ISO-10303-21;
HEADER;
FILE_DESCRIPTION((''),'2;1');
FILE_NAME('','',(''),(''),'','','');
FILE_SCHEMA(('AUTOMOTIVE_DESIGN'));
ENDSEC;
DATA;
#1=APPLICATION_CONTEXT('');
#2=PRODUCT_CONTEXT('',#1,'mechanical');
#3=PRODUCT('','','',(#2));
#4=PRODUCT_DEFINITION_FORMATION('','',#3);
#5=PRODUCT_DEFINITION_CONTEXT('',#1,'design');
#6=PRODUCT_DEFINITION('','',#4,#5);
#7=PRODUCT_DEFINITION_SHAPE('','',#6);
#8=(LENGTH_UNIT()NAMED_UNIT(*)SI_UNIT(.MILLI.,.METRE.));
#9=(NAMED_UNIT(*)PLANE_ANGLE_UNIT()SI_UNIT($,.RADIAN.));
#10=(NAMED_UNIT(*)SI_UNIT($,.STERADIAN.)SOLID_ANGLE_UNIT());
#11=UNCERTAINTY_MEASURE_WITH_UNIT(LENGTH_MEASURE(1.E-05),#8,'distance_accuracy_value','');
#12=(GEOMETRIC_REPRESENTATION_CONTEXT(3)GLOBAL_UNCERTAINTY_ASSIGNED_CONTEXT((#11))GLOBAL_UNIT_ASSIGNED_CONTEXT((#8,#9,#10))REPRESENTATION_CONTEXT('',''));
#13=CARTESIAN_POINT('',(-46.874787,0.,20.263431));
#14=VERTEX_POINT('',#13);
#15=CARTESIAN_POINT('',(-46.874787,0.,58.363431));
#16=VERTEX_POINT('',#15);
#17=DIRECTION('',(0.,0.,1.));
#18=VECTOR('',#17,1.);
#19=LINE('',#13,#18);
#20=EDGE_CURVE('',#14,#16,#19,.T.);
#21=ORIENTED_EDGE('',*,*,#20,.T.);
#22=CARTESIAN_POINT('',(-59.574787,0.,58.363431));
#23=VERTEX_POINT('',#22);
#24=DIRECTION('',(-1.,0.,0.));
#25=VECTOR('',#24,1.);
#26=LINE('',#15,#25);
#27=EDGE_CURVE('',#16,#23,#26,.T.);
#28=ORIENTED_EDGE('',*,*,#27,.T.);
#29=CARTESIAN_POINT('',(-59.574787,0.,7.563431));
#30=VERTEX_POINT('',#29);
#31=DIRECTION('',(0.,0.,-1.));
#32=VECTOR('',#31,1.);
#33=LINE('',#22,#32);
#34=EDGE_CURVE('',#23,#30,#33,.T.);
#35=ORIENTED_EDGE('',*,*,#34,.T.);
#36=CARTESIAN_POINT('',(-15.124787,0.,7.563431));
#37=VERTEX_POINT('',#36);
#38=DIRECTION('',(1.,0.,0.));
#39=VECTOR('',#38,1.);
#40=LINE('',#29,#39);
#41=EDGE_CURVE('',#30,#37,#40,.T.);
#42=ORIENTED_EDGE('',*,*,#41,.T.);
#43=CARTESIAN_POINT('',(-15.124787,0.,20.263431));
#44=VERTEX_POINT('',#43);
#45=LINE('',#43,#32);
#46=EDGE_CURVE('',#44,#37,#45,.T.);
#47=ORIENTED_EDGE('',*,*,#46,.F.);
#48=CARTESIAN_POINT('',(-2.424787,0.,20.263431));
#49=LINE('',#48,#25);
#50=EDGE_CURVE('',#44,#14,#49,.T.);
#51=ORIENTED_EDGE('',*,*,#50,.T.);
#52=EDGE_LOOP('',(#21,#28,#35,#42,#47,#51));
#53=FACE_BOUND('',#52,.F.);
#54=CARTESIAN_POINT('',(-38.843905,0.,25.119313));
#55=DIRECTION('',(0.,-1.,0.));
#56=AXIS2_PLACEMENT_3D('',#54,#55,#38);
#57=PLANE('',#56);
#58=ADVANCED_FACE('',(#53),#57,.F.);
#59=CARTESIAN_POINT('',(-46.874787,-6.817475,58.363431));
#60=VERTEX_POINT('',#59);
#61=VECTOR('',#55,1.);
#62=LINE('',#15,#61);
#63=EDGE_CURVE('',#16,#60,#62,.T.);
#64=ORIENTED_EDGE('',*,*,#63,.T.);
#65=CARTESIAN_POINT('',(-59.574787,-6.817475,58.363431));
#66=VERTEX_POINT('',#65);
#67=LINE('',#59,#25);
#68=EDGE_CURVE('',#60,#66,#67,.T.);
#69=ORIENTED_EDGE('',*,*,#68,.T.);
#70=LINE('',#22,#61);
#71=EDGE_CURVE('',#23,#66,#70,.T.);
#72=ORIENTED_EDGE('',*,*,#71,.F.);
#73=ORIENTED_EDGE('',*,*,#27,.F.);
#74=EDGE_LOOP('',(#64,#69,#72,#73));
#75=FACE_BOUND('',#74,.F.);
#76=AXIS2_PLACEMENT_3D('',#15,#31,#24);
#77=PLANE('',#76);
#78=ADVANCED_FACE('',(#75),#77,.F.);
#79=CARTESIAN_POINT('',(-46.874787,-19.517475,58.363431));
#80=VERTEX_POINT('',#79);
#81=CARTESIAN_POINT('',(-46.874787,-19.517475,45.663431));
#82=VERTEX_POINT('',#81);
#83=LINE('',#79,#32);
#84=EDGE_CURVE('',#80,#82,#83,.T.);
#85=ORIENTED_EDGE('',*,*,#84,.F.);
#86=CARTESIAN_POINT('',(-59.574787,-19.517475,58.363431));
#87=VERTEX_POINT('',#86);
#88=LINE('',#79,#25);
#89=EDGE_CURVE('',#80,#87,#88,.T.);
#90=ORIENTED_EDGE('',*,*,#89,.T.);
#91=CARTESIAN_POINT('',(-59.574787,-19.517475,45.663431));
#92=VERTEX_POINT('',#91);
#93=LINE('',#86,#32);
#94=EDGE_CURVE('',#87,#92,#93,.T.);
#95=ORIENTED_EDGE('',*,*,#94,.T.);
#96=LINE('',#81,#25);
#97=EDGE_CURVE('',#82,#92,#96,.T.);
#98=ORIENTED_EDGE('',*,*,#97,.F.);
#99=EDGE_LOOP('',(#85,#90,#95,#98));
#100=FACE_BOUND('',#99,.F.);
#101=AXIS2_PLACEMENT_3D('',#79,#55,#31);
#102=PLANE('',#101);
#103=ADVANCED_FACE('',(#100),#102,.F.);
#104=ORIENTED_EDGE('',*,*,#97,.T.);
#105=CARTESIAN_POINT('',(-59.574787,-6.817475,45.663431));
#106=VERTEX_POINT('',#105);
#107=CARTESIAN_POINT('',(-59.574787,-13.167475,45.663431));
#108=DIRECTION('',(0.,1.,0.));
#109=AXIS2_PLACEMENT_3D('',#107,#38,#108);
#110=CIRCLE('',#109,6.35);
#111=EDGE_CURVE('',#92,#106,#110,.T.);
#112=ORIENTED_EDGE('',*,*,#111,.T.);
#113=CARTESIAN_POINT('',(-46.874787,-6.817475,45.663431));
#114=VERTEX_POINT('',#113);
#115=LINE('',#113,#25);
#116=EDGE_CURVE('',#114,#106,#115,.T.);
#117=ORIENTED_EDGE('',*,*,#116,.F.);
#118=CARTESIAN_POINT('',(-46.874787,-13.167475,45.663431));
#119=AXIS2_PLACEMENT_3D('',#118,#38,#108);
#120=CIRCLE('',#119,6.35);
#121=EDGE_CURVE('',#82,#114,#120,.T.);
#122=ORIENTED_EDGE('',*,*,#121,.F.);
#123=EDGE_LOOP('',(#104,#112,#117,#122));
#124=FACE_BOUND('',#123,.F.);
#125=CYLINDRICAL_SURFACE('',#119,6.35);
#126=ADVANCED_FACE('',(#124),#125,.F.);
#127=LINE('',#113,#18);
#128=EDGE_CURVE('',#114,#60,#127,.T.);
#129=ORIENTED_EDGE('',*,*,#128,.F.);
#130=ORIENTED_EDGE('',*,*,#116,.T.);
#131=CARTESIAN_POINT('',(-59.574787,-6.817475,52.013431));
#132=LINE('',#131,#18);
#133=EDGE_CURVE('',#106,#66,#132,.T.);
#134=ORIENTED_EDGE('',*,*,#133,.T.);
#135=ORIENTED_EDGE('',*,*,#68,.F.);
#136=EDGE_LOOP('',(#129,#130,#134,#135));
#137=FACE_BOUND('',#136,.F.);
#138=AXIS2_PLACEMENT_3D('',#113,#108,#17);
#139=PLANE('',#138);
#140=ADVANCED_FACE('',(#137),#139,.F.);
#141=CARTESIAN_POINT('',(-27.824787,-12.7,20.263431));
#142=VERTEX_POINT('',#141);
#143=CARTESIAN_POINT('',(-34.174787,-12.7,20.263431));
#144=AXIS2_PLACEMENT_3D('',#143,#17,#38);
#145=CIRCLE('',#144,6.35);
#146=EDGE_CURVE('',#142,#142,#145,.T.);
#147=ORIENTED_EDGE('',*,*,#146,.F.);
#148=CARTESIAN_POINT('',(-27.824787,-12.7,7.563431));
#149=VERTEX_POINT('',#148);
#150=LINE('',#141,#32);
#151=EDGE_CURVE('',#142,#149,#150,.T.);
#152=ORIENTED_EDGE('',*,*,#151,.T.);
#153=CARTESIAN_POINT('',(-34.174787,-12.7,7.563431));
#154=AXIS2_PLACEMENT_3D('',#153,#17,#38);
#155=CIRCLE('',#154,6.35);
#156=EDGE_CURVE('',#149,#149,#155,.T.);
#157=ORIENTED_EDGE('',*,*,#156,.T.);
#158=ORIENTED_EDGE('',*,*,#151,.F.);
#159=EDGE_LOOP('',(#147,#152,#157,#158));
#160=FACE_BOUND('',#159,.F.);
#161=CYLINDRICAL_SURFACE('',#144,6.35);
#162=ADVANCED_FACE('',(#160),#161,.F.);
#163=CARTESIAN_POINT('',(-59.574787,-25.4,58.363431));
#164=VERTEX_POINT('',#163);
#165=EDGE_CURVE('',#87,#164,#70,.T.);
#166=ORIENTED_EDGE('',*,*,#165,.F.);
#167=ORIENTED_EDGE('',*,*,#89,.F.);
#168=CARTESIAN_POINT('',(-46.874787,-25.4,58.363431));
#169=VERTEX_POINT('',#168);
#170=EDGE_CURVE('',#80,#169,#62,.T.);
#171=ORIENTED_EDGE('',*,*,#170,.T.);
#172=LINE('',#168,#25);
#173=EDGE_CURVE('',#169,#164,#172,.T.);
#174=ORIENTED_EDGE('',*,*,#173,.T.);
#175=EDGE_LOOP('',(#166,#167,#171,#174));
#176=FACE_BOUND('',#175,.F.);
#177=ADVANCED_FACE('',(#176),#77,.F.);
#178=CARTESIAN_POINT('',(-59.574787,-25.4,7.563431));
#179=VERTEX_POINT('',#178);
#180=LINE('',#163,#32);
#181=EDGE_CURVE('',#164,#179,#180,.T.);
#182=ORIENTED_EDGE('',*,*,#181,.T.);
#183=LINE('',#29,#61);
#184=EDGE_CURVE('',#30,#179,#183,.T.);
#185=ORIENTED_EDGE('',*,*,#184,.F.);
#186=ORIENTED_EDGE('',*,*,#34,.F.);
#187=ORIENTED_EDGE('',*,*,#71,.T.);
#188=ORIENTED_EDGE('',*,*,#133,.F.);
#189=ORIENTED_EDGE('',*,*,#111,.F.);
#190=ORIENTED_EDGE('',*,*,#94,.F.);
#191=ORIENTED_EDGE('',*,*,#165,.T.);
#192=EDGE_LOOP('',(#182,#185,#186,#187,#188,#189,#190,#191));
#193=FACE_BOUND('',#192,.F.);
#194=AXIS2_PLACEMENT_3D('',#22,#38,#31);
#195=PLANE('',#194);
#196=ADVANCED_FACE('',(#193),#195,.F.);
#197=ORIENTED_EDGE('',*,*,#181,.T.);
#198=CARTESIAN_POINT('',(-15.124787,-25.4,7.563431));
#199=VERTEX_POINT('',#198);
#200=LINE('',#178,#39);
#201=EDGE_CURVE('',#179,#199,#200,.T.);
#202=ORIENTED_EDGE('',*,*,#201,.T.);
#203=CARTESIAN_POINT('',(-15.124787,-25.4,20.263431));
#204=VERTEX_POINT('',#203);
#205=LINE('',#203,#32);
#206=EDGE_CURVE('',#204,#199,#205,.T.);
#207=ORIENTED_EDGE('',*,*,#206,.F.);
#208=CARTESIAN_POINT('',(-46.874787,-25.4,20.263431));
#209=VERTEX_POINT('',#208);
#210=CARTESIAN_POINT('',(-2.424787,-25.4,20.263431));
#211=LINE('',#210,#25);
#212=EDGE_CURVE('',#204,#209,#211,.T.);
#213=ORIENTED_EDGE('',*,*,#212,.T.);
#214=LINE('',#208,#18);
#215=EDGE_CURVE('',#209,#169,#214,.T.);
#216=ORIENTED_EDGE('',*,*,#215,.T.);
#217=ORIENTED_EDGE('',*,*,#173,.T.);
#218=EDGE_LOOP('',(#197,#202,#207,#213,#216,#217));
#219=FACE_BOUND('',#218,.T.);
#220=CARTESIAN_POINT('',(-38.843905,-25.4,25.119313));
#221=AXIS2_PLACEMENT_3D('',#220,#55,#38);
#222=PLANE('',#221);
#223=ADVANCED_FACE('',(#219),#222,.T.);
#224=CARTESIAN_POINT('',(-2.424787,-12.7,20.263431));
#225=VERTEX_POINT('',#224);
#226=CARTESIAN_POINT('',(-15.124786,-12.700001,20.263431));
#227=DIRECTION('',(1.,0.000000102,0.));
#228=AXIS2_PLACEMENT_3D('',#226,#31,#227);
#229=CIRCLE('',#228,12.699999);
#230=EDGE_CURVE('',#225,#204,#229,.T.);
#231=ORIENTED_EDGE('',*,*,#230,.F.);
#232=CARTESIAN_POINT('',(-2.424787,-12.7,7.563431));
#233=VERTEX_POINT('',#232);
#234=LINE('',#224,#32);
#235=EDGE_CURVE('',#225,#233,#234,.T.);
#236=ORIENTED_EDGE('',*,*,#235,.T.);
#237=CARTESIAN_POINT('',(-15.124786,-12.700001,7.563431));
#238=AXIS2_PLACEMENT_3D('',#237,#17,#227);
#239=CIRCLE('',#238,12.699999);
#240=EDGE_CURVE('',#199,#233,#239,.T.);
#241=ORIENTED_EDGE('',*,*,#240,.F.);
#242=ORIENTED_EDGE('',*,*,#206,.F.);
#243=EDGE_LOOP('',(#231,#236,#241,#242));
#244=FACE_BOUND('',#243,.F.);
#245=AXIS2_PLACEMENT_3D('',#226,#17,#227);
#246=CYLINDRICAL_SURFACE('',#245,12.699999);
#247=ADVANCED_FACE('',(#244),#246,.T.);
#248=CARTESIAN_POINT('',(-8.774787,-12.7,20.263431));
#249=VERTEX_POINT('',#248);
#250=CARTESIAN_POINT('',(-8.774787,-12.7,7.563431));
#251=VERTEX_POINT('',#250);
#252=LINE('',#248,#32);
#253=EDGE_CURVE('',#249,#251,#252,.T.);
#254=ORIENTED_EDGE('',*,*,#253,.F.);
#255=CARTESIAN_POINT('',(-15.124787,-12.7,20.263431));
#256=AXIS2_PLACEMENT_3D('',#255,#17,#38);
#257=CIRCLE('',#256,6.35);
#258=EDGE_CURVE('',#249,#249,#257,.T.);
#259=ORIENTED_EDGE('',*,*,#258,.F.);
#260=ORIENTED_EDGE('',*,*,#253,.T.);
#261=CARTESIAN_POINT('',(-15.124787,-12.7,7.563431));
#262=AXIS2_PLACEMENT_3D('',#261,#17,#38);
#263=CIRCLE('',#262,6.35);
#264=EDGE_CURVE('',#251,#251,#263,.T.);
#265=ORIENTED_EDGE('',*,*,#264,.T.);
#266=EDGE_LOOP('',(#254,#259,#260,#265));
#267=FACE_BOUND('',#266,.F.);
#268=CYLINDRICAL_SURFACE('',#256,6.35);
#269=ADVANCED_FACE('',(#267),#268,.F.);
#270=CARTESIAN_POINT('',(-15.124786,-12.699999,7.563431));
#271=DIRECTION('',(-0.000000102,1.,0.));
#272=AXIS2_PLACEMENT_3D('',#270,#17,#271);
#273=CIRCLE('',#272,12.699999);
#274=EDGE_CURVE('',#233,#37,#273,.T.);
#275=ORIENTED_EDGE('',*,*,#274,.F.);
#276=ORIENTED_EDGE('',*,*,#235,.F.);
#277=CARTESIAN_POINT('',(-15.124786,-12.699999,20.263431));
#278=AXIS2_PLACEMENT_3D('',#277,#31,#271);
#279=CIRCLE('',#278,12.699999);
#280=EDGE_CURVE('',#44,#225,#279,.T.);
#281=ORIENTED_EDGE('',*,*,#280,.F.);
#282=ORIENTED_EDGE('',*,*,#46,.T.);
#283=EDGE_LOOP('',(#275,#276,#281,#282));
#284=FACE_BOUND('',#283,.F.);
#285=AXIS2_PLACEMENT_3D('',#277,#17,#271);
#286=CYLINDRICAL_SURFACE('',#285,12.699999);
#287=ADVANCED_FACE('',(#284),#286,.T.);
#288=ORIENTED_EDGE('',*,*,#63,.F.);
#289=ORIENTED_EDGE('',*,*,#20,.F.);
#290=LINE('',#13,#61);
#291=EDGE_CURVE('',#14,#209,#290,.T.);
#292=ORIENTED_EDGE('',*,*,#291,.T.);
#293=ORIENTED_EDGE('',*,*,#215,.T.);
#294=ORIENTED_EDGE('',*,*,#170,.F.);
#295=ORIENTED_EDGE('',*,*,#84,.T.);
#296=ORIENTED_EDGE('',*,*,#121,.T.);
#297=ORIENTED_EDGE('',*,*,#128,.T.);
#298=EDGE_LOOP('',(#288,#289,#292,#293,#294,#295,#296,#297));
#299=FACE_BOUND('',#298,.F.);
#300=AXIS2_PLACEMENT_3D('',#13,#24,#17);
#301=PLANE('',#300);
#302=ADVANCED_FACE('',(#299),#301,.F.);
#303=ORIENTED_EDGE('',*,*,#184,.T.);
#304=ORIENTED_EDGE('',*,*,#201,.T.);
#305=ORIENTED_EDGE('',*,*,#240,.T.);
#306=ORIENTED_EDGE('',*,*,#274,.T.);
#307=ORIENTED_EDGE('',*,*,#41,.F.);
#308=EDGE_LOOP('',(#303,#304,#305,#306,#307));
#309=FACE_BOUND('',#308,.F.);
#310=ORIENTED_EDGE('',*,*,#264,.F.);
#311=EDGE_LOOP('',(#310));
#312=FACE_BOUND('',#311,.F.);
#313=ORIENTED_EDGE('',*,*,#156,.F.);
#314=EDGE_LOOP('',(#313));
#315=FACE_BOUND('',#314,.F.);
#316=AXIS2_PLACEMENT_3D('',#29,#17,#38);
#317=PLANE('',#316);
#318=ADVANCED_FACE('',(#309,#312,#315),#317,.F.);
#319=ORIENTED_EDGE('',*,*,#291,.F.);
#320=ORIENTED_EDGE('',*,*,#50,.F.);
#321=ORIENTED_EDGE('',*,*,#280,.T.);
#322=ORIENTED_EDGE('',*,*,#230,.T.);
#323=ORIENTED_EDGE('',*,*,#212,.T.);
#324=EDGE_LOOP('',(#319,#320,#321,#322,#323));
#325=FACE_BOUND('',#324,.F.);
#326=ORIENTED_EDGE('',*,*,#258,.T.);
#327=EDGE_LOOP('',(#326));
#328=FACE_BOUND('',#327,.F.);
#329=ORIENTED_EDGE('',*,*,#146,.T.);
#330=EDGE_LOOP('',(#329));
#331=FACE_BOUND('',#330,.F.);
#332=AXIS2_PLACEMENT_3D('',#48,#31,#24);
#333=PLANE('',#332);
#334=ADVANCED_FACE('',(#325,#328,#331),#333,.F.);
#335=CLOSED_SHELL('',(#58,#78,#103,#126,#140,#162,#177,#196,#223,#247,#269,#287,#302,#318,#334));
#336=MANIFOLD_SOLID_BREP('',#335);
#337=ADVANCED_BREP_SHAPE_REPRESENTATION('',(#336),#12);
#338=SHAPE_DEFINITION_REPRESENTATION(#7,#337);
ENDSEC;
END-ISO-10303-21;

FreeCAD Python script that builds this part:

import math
import FreeCAD as App
import Part
import Sketcher
Q = App.Units.Quantity

doc = App.newDocument("Part")
body = doc.addObject("PartDesign::Body", "Body")

sketch1 = doc.addObject("Sketcher::SketchObject", "Sketch")
body.addObject(sketch1)
sketch1.AttachmentSupport = (doc.XZ_Plane, [""])
sketch1.MapMode = "FlatFace"
sketch1.addGeometry(Part.LineSegment(App.Vector(-47, 58, 0), App.Vector(-60, 58, 0)), False)
sketch1.addGeometry(Part.LineSegment(App.Vector(-60, 58, 0), App.Vector(-60, 8, 0)), False)
sketch1.addGeometry(Part.LineSegment(App.Vector(-60, 8, 0), App.Vector(-2, 8, 0)), False)
sketch1.addGeometry(Part.LineSegment(App.Vector(-2, 8, 0), App.Vector(-2, 20, 0)), False)
sketch1.addGeometry(Part.LineSegment(App.Vector(-2, 20, 0), App.Vector(-47, 20, 0)), False)
sketch1.addGeometry(Part.LineSegment(App.Vector(-47, 20, 0), App.Vector(-47, 58, 0)), False)
sketch1.addConstraint(Sketcher.Constraint("Coincident", 0, 2, 1, 1))
sketch1.addConstraint(Sketcher.Constraint("Coincident", 1, 2, 2, 1))
sketch1.addConstraint(Sketcher.Constraint("Coincident", 2, 2, 3, 1))
sketch1.addConstraint(Sketcher.Constraint("Coincident", 3, 2, 4, 1))
sketch1.addConstraint(Sketcher.Constraint("Coincident", 4, 2, 5, 1))
sketch1.addConstraint(Sketcher.Constraint("Coincident", 5, 2, 0, 1))
sketch1.addConstraint(Sketcher.Constraint("Horizontal", 0))
sketch1.addConstraint(Sketcher.Constraint("Vertical", 1))
sketch1.addConstraint(Sketcher.Constraint("Horizontal", 2))
sketch1.addConstraint(Sketcher.Constraint("Vertical", 3))
sketch1.addConstraint(Sketcher.Constraint("Horizontal", 4))
sketch1.addConstraint(Sketcher.Constraint("Vertical", 5))
sketch1.addConstraint(Sketcher.Constraint("Equal", 0, 3))
sketch1.addConstraint(Sketcher.Constraint("DistanceY", 1, 2, 1, 1, Q("2 in")))
sketch1.addConstraint(Sketcher.Constraint("DistanceX", 0, 2, 0, 1, Q("0.5 in")))
sketch1.addConstraint(Sketcher.Constraint("DistanceX", 2, 1, 2, 2, Q("2.25 in")))
sketch1.addConstraint(Sketcher.Constraint("DistanceY", -1, 1, 0, 2, 58.363431))
sketch1.addConstraint(Sketcher.Constraint("DistanceX", 0, 2, -1, 1, 59.574787))
pad1 = doc.addObject("PartDesign::Pad", "Pad")
body.addObject(pad1)
pad1.Profile = sketch1
pad1.Length = Q("1 in")

sketch2 = doc.addObject("Sketcher::SketchObject", "Sketch001")
body.addObject(sketch2)
sketch2.AttachmentSupport = (doc.XY_Plane, [""])
sketch2.MapMode = "FlatFace"
sketch2.AttachmentOffset = App.Placement(App.Vector(0, 0, 20.263431), App.Rotation())
sketch2.addGeometry(Part.Circle(App.Vector(-34, -13, 0), App.Vector(0, 0, 1), 6), False)
sketch2.addGeometry(Part.Circle(App.Vector(-15, -13, 0), App.Vector(0, 0, 1), 6), False)
sketch2.addGeometry(Part.ArcOfCircle(Part.Circle(App.Vector(-15, -13, 0), App.Vector(0, 0, 1), 13), math.radians(0), math.radians(90)), False)
sketch2.addGeometry(Part.LineSegment(App.Vector(-2, -13, 0), App.Vector(-2, 0, 0)), False)
sketch2.addGeometry(Part.LineSegment(App.Vector(-2, 0, 0), App.Vector(-15, 0, 0)), False)
sketch2.addGeometry(Part.ArcOfCircle(Part.Circle(App.Vector(-15, -13, 0), App.Vector(0, 0, 1), 13), math.radians(-90), math.radians(0)), False)
sketch2.addGeometry(Part.LineSegment(App.Vector(-15, -25, 0), App.Vector(-2, -25, 0)), False)
sketch2.addGeometry(Part.LineSegment(App.Vector(-2, -25, 0), App.Vector(-2, -13, 0)), False)
sketch2.addConstraint(Sketcher.Constraint("Tangent", 2, 1, 3, 1))
sketch2.addConstraint(Sketcher.Constraint("Coincident", 3, 2, 4, 1))
sketch2.addConstraint(Sketcher.Constraint("Tangent", 4, 2, 2, 2))
sketch2.addConstraint(Sketcher.Constraint("Tangent", 5, 1, 6, 1))
sketch2.addConstraint(Sketcher.Constraint("Coincident", 6, 2, 7, 1))
sketch2.addConstraint(Sketcher.Constraint("Tangent", 7, 2, 5, 2))
sketch2.addConstraint(Sketcher.Constraint("Vertical", 3))
sketch2.addConstraint(Sketcher.Constraint("Horizontal", 4))
sketch2.addConstraint(Sketcher.Constraint("Horizontal", 6))
sketch2.addConstraint(Sketcher.Constraint("Vertical", 7))
sketch2.addConstraint(Sketcher.Constraint("Coincident", 2, 3, 1, 3))
sketch2.addConstraint(Sketcher.Constraint("Coincident", 5, 3, 1, 3))
sketch2.addConstraint(Sketcher.Constraint("Equal", 0, 1))
sketch2.addConstraint(Sketcher.Constraint("Equal", 2, 5))
sketch2.addConstraint(Sketcher.Constraint("PointOnObject", 3, 2, -1))
sketch2.addConstraint(Sketcher.Constraint("Horizontal", 0, 3, 1, 3))
sketch2.addConstraint(Sketcher.Constraint("Diameter", 0, Q("0.5 in")))
sketch2.addConstraint(Sketcher.Constraint("Radius", 2, Q("0.4999999 in")))
sketch2.addConstraint(Sketcher.Constraint("DistanceX", 0, 3, 1, 3, Q("0.75 in")))
sketch2.addConstraint(Sketcher.Constraint("DistanceX", 0, 3, -1, 1, 34.174787))
pocket1 = doc.addObject("PartDesign::Pocket", "Pocket")
body.addObject(pocket1)
pocket1.Profile = sketch2
pocket1.Length = Q("1 in")

sketch3 = doc.addObject("Sketcher::SketchObject", "Sketch002")
body.addObject(sketch3)
sketch3.AttachmentSupport = (doc.YZ_Plane, [""])
sketch3.MapMode = "FlatFace"
sketch3.AttachmentOffset = App.Placement(App.Vector(0, 0, -46.874787), App.Rotation())
sketch3.addGeometry(Part.ArcOfCircle(Part.Circle(App.Vector(-13, 46, 0), App.Vector(0, 0, 1), 6), math.radians(180), math.radians(360)), False)
sketch3.addGeometry(Part.LineSegment(App.Vector(-7, 46, 0), App.Vector(-7, 58, 0)), False)
sketch3.addGeometry(Part.LineSegment(App.Vector(-7, 58, 0), App.Vector(-20, 58, 0)), False)
sketch3.addGeometry(Part.LineSegment(App.Vector(-20, 58, 0), App.Vector(-20, 46, 0)), False)
sketch3.addConstraint(Sketcher.Constraint("Tangent", 0, 2, 1, 1))
sketch3.addConstraint(Sketcher.Constraint("Coincident", 1, 2, 2, 1))
sketch3.addConstraint(Sketcher.Constraint("Coincident", 2, 2, 3, 1))
sketch3.addConstraint(Sketcher.Constraint("Tangent", 3, 2, 0, 1))
sketch3.addConstraint(Sketcher.Constraint("Vertical", 1))
sketch3.addConstraint(Sketcher.Constraint("Horizontal", 2))
sketch3.addConstraint(Sketcher.Constraint("Vertical", 3))
sketch3.addConstraint(Sketcher.Constraint("Equal", 2, 1))
sketch3.addConstraint(Sketcher.Constraint("Radius", 0, Q("0.25 in")))
sketch3.addConstraint(Sketcher.Constraint("DistanceY", -1, 1, 0, 3, 45.663431))
sketch3.addConstraint(Sketcher.Constraint("DistanceX", 0, 3, -1, 1, 13.167475))
pocket2 = doc.addObject("PartDesign::Pocket", "Pocket001")
body.addObject(pocket2)
pocket2.Profile = sketch3
pocket2.Length = Q("1 in")

doc.recompute()
